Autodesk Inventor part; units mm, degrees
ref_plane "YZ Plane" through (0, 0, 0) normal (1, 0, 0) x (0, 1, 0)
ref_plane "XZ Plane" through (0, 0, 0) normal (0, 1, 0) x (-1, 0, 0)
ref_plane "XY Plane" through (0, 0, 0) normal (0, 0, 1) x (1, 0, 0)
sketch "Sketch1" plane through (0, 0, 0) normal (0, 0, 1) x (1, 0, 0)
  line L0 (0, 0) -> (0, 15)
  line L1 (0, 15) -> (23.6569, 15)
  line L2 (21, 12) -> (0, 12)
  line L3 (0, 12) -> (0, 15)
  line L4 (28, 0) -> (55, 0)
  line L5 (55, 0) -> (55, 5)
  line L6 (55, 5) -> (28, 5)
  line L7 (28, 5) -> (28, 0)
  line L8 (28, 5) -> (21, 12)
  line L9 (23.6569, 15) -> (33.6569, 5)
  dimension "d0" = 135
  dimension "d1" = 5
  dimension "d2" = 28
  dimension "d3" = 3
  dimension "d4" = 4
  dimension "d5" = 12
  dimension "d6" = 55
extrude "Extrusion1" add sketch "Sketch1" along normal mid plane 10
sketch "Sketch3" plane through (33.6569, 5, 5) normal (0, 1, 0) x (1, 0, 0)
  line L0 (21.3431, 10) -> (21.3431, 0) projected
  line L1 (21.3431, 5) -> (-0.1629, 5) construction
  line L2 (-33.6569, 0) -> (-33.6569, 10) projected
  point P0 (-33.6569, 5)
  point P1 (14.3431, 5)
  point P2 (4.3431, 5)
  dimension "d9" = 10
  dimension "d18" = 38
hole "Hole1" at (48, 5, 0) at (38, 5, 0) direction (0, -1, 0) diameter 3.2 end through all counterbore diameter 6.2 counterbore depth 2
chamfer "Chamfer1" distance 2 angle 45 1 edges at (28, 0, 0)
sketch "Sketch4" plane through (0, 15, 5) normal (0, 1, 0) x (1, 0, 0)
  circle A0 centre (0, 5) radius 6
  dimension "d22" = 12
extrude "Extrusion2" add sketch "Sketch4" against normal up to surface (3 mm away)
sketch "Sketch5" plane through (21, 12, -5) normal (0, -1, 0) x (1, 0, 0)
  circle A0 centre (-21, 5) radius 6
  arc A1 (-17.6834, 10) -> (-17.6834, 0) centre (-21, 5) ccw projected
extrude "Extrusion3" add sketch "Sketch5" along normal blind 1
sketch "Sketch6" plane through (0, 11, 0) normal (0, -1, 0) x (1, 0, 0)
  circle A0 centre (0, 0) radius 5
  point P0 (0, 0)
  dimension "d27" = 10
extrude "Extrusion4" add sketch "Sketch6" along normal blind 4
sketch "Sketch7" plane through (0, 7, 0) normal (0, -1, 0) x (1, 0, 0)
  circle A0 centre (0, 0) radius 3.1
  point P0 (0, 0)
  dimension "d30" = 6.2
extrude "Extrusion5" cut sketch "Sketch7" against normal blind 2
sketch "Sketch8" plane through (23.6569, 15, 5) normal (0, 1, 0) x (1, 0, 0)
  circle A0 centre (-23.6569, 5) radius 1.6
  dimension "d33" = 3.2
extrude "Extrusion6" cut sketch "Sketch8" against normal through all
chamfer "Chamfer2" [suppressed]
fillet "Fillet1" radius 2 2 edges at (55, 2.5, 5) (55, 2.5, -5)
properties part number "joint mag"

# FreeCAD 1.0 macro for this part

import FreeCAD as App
import Part
import Sketcher
from FreeCAD import Vector
Q = App.Units.Quantity


def edges_at(feature, points):
    """Names of the edges that pass closest to the given points."""
    edges = feature.Shape.Edges
    near = lambda p: min(range(len(edges)), key=lambda i: edges[i].distToShape(Part.Vertex(*p))[0])
    return sorted({f"Edge{near(p) + 1}" for p in points})


def add_polygon(sketch, points):
    """Adds a closed chain of lines whose ends are joined by coincident constraints."""
    first, n = sketch.GeometryCount, len(points)
    for a, b in zip(points, points[1:] + points[:1]):
        sketch.addGeometry(Part.LineSegment(App.Vector(*a, 0), App.Vector(*b, 0)), False)
    for i in range(n):
        sketch.addConstraint(Sketcher.Constraint("Coincident", first + i, 2, first + (i + 1) % n, 1))

doc = App.newDocument("Part")
body = doc.addObject("PartDesign::Body", "Body")

sketch1 = doc.addObject("Sketcher::SketchObject", "Sketch")
body.addObject(sketch1)
sketch1.AttachmentSupport = (doc.XY_Plane, [""])
sketch1.MapMode = "FlatFace"
add_polygon(sketch1, [(0, 15), (0, 12), (21, 12), (28, 5), (28, 0), (55, 0), (55, 5), (33.6569, 5), (23.6569, 15)])
sketch1.addConstraint(Sketcher.Constraint("Vertical", 0))
sketch1.addConstraint(Sketcher.Constraint("Horizontal", 1))
sketch1.addConstraint(Sketcher.Constraint("Vertical", 3))
sketch1.addConstraint(Sketcher.Constraint("Horizontal", 4))
sketch1.addConstraint(Sketcher.Constraint("Vertical", 5))
sketch1.addConstraint(Sketcher.Constraint("Horizontal", 6))
sketch1.addConstraint(Sketcher.Constraint("Horizontal", 8))
sketch1.addConstraint(Sketcher.Constraint("PointOnObject", 0, 2, -2))
sketch1.addConstraint(Sketcher.Constraint("PointOnObject", 3, 2, -1))
sketch1.addConstraint(Sketcher.Constraint("Parallel", 2, 7))
sketch1.addConstraint(Sketcher.Constraint("Horizontal", 2, 2, 5, 2))
sketch1.addConstraint(Sketcher.Constraint("DistanceY", 0, 2, 0, 1, 3.0))
sketch1.addConstraint(Sketcher.Constraint("DistanceY", 3, 2, 3, 1, 5.0))
sketch1.addConstraint(Sketcher.Constraint("Angle", 7, Q("135 deg")))
sketch1.addConstraint(Sketcher.Constraint("DistanceY", -1, 1, 0, 2, 12.0))
sketch1.addConstraint(Sketcher.Constraint("DistanceX", -1, 1, 2, 2, 28.0))
sketch1.addConstraint(Sketcher.Constraint("DistanceX", -1, 1, 4, 2, 55.0))
sketch1.addConstraint(Sketcher.Constraint("DistanceX", 6, 2, 6, 1, 21.343))
pad1 = doc.addObject("PartDesign::Pad", "Pad")
body.addObject(pad1)
pad1.Profile = sketch1
pad1.Length = 10
pad1.Midplane = True

sketch2 = doc.addObject("Sketcher::SketchObject", "Sketch001")
body.addObject(sketch2)
sketch2.AttachmentSupport = (doc.XZ_Plane, [""])
sketch2.MapMode = "FlatFace"
sketch2.AttachmentOffset = App.Placement(Vector(0, 0, -5), App.Rotation())
sketch2.addGeometry(Part.Circle(Vector(48, 0, 0), Vector(0, 0, 1), 1.6), False)
sketch2.addGeometry(Part.Circle(Vector(38, 0, 0), Vector(0, 0, 1), 1.6), False)
sketch2.addConstraint(Sketcher.Constraint("Equal", 0, 1))
sketch2.addConstraint(Sketcher.Constraint("PointOnObject", 0, 3, -1))
sketch2.addConstraint(Sketcher.Constraint("PointOnObject", 1, 3, -1))
sketch2.addConstraint(Sketcher.Constraint("Diameter", 0, 3.2))
sketch2.addConstraint(Sketcher.Constraint("DistanceX", -1, 1, 0, 3, 48.0))
sketch2.addConstraint(Sketcher.Constraint("DistanceX", -1, 1, 1, 3, 38.0))
doc.recompute()
hole = doc.addObject("PartDesign::Hole", "Hole")
body.addObject(hole)
hole.Profile = sketch2
hole.ThreadType = "None"
hole.Diameter = 3.2
hole.DepthType = "ThroughAll"
hole.HoleCutType = "Counterbore"
hole.HoleCutDiameter = 6.2
hole.HoleCutDepth = 2
hole.Reversed = True
doc.recompute()

chamfer = doc.addObject("PartDesign::Chamfer", "Chamfer")
body.addObject(chamfer)
chamfer.Base = (hole, edges_at(hole, [(28, 0, 0)]))
chamfer.Size = 2

sketch3 = doc.addObject("Sketcher::SketchObject", "Sketch002")
body.addObject(sketch3)
sketch3.AttachmentSupport = (doc.XZ_Plane, [""])
sketch3.MapMode = "FlatFace"
sketch3.AttachmentOffset = App.Placement(Vector(0, 0, -15), App.Rotation())
sketch3.addGeometry(Part.Circle(Vector(0, 0, 0), Vector(0, 0, 1), 6), False)
sketch3.addConstraint(Sketcher.Constraint("Coincident", 0, 3, -1, 1))
sketch3.addConstraint(Sketcher.Constraint("Diameter", 0, 12.0))
pad2 = doc.addObject("PartDesign::Pad", "Pad001")
body.addObject(pad2)
pad2.Profile = sketch3
pad2.Length = 3

sketch4 = doc.addObject("Sketcher::SketchObject", "Sketch003")
body.addObject(sketch4)
sketch4.AttachmentSupport = (doc.XZ_Plane, [""])
sketch4.MapMode = "FlatFace"
sketch4.AttachmentOffset = App.Placement(Vector(0, 0, -12), App.Rotation())
sketch4.addGeometry(Part.Circle(Vector(0, 0, 0), Vector(0, 0, 1), 6), False)
sketch4.addConstraint(Sketcher.Constraint("Coincident", 0, 3, -1, 1))
sketch4.addConstraint(Sketcher.Constraint("Diameter", 0, 12.0))
pad3 = doc.addObject("PartDesign::Pad", "Pad002")
body.addObject(pad3)
pad3.Profile = sketch4
pad3.Length = 1

sketch5 = doc.addObject("Sketcher::SketchObject", "Sketch004")
body.addObject(sketch5)
sketch5.AttachmentSupport = (doc.XZ_Plane, [""])
sketch5.MapMode = "FlatFace"
sketch5.AttachmentOffset = App.Placement(Vector(0, 0, -11), App.Rotation())
sketch5.addGeometry(Part.Circle(Vector(0, 0, 0), Vector(0, 0, 1), 5), False)
sketch5.addConstraint(Sketcher.Constraint("Coincident", 0, 3, -1, 1))
sketch5.addConstraint(Sketcher.Constraint("Diameter", 0, 10.0))
pad4 = doc.addObject("PartDesign::Pad", "Pad003")
body.addObject(pad4)
pad4.Profile = sketch5
pad4.Length = 4

sketch6 = doc.addObject("Sketcher::SketchObject", "Sketch005")
body.addObject(sketch6)
sketch6.AttachmentSupport = (doc.XZ_Plane, [""])
sketch6.MapMode = "FlatFace"
sketch6.AttachmentOffset = App.Placement(Vector(0, 0, -7), App.Rotation())
sketch6.addGeometry(Part.Circle(Vector(0, 0, 0), Vector(0, 0, 1), 3.1), False)
sketch6.addConstraint(Sketcher.Constraint("Coincident", 0, 3, -1, 1))
sketch6.addConstraint(Sketcher.Constraint("Diameter", 0, 6.2))
pocket1 = doc.addObject("PartDesign::Pocket", "Pocket")
body.addObject(pocket1)
pocket1.Profile = sketch6
pocket1.Length = 2

sketch7 = doc.addObject("Sketcher::SketchObject", "Sketch006")
body.addObject(sketch7)
sketch7.AttachmentSupport = (doc.XZ_Plane, [""])
sketch7.MapMode = "FlatFace"
sketch7.AttachmentOffset = App.Placement(Vector(0, 0, -15), App.Rotation())
sketch7.addGeometry(Part.Circle(Vector(0, 0, 0), Vector(0, 0, 1), 1.6), False)
sketch7.addConstraint(Sketcher.Constraint("Coincident", 0, 3, -1, 1))
sketch7.addConstraint(Sketcher.Constraint("Diameter", 0, 3.2))
pocket2 = doc.addObject("PartDesign::Pocket", "Pocket001")
body.addObject(pocket2)
pocket2.Profile = sketch7
pocket2.Type = "ThroughAll"
pocket2.Reversed = True
doc.recompute()

fillet = doc.addObject("PartDesign::Fillet", "Fillet")
body.addObject(fillet)
fillet.Base = (pocket2, edges_at(pocket2, [(55, 2.5, 5), (55, 2.5, -5)]))
fillet.Radius = 2

doc.recompute()
